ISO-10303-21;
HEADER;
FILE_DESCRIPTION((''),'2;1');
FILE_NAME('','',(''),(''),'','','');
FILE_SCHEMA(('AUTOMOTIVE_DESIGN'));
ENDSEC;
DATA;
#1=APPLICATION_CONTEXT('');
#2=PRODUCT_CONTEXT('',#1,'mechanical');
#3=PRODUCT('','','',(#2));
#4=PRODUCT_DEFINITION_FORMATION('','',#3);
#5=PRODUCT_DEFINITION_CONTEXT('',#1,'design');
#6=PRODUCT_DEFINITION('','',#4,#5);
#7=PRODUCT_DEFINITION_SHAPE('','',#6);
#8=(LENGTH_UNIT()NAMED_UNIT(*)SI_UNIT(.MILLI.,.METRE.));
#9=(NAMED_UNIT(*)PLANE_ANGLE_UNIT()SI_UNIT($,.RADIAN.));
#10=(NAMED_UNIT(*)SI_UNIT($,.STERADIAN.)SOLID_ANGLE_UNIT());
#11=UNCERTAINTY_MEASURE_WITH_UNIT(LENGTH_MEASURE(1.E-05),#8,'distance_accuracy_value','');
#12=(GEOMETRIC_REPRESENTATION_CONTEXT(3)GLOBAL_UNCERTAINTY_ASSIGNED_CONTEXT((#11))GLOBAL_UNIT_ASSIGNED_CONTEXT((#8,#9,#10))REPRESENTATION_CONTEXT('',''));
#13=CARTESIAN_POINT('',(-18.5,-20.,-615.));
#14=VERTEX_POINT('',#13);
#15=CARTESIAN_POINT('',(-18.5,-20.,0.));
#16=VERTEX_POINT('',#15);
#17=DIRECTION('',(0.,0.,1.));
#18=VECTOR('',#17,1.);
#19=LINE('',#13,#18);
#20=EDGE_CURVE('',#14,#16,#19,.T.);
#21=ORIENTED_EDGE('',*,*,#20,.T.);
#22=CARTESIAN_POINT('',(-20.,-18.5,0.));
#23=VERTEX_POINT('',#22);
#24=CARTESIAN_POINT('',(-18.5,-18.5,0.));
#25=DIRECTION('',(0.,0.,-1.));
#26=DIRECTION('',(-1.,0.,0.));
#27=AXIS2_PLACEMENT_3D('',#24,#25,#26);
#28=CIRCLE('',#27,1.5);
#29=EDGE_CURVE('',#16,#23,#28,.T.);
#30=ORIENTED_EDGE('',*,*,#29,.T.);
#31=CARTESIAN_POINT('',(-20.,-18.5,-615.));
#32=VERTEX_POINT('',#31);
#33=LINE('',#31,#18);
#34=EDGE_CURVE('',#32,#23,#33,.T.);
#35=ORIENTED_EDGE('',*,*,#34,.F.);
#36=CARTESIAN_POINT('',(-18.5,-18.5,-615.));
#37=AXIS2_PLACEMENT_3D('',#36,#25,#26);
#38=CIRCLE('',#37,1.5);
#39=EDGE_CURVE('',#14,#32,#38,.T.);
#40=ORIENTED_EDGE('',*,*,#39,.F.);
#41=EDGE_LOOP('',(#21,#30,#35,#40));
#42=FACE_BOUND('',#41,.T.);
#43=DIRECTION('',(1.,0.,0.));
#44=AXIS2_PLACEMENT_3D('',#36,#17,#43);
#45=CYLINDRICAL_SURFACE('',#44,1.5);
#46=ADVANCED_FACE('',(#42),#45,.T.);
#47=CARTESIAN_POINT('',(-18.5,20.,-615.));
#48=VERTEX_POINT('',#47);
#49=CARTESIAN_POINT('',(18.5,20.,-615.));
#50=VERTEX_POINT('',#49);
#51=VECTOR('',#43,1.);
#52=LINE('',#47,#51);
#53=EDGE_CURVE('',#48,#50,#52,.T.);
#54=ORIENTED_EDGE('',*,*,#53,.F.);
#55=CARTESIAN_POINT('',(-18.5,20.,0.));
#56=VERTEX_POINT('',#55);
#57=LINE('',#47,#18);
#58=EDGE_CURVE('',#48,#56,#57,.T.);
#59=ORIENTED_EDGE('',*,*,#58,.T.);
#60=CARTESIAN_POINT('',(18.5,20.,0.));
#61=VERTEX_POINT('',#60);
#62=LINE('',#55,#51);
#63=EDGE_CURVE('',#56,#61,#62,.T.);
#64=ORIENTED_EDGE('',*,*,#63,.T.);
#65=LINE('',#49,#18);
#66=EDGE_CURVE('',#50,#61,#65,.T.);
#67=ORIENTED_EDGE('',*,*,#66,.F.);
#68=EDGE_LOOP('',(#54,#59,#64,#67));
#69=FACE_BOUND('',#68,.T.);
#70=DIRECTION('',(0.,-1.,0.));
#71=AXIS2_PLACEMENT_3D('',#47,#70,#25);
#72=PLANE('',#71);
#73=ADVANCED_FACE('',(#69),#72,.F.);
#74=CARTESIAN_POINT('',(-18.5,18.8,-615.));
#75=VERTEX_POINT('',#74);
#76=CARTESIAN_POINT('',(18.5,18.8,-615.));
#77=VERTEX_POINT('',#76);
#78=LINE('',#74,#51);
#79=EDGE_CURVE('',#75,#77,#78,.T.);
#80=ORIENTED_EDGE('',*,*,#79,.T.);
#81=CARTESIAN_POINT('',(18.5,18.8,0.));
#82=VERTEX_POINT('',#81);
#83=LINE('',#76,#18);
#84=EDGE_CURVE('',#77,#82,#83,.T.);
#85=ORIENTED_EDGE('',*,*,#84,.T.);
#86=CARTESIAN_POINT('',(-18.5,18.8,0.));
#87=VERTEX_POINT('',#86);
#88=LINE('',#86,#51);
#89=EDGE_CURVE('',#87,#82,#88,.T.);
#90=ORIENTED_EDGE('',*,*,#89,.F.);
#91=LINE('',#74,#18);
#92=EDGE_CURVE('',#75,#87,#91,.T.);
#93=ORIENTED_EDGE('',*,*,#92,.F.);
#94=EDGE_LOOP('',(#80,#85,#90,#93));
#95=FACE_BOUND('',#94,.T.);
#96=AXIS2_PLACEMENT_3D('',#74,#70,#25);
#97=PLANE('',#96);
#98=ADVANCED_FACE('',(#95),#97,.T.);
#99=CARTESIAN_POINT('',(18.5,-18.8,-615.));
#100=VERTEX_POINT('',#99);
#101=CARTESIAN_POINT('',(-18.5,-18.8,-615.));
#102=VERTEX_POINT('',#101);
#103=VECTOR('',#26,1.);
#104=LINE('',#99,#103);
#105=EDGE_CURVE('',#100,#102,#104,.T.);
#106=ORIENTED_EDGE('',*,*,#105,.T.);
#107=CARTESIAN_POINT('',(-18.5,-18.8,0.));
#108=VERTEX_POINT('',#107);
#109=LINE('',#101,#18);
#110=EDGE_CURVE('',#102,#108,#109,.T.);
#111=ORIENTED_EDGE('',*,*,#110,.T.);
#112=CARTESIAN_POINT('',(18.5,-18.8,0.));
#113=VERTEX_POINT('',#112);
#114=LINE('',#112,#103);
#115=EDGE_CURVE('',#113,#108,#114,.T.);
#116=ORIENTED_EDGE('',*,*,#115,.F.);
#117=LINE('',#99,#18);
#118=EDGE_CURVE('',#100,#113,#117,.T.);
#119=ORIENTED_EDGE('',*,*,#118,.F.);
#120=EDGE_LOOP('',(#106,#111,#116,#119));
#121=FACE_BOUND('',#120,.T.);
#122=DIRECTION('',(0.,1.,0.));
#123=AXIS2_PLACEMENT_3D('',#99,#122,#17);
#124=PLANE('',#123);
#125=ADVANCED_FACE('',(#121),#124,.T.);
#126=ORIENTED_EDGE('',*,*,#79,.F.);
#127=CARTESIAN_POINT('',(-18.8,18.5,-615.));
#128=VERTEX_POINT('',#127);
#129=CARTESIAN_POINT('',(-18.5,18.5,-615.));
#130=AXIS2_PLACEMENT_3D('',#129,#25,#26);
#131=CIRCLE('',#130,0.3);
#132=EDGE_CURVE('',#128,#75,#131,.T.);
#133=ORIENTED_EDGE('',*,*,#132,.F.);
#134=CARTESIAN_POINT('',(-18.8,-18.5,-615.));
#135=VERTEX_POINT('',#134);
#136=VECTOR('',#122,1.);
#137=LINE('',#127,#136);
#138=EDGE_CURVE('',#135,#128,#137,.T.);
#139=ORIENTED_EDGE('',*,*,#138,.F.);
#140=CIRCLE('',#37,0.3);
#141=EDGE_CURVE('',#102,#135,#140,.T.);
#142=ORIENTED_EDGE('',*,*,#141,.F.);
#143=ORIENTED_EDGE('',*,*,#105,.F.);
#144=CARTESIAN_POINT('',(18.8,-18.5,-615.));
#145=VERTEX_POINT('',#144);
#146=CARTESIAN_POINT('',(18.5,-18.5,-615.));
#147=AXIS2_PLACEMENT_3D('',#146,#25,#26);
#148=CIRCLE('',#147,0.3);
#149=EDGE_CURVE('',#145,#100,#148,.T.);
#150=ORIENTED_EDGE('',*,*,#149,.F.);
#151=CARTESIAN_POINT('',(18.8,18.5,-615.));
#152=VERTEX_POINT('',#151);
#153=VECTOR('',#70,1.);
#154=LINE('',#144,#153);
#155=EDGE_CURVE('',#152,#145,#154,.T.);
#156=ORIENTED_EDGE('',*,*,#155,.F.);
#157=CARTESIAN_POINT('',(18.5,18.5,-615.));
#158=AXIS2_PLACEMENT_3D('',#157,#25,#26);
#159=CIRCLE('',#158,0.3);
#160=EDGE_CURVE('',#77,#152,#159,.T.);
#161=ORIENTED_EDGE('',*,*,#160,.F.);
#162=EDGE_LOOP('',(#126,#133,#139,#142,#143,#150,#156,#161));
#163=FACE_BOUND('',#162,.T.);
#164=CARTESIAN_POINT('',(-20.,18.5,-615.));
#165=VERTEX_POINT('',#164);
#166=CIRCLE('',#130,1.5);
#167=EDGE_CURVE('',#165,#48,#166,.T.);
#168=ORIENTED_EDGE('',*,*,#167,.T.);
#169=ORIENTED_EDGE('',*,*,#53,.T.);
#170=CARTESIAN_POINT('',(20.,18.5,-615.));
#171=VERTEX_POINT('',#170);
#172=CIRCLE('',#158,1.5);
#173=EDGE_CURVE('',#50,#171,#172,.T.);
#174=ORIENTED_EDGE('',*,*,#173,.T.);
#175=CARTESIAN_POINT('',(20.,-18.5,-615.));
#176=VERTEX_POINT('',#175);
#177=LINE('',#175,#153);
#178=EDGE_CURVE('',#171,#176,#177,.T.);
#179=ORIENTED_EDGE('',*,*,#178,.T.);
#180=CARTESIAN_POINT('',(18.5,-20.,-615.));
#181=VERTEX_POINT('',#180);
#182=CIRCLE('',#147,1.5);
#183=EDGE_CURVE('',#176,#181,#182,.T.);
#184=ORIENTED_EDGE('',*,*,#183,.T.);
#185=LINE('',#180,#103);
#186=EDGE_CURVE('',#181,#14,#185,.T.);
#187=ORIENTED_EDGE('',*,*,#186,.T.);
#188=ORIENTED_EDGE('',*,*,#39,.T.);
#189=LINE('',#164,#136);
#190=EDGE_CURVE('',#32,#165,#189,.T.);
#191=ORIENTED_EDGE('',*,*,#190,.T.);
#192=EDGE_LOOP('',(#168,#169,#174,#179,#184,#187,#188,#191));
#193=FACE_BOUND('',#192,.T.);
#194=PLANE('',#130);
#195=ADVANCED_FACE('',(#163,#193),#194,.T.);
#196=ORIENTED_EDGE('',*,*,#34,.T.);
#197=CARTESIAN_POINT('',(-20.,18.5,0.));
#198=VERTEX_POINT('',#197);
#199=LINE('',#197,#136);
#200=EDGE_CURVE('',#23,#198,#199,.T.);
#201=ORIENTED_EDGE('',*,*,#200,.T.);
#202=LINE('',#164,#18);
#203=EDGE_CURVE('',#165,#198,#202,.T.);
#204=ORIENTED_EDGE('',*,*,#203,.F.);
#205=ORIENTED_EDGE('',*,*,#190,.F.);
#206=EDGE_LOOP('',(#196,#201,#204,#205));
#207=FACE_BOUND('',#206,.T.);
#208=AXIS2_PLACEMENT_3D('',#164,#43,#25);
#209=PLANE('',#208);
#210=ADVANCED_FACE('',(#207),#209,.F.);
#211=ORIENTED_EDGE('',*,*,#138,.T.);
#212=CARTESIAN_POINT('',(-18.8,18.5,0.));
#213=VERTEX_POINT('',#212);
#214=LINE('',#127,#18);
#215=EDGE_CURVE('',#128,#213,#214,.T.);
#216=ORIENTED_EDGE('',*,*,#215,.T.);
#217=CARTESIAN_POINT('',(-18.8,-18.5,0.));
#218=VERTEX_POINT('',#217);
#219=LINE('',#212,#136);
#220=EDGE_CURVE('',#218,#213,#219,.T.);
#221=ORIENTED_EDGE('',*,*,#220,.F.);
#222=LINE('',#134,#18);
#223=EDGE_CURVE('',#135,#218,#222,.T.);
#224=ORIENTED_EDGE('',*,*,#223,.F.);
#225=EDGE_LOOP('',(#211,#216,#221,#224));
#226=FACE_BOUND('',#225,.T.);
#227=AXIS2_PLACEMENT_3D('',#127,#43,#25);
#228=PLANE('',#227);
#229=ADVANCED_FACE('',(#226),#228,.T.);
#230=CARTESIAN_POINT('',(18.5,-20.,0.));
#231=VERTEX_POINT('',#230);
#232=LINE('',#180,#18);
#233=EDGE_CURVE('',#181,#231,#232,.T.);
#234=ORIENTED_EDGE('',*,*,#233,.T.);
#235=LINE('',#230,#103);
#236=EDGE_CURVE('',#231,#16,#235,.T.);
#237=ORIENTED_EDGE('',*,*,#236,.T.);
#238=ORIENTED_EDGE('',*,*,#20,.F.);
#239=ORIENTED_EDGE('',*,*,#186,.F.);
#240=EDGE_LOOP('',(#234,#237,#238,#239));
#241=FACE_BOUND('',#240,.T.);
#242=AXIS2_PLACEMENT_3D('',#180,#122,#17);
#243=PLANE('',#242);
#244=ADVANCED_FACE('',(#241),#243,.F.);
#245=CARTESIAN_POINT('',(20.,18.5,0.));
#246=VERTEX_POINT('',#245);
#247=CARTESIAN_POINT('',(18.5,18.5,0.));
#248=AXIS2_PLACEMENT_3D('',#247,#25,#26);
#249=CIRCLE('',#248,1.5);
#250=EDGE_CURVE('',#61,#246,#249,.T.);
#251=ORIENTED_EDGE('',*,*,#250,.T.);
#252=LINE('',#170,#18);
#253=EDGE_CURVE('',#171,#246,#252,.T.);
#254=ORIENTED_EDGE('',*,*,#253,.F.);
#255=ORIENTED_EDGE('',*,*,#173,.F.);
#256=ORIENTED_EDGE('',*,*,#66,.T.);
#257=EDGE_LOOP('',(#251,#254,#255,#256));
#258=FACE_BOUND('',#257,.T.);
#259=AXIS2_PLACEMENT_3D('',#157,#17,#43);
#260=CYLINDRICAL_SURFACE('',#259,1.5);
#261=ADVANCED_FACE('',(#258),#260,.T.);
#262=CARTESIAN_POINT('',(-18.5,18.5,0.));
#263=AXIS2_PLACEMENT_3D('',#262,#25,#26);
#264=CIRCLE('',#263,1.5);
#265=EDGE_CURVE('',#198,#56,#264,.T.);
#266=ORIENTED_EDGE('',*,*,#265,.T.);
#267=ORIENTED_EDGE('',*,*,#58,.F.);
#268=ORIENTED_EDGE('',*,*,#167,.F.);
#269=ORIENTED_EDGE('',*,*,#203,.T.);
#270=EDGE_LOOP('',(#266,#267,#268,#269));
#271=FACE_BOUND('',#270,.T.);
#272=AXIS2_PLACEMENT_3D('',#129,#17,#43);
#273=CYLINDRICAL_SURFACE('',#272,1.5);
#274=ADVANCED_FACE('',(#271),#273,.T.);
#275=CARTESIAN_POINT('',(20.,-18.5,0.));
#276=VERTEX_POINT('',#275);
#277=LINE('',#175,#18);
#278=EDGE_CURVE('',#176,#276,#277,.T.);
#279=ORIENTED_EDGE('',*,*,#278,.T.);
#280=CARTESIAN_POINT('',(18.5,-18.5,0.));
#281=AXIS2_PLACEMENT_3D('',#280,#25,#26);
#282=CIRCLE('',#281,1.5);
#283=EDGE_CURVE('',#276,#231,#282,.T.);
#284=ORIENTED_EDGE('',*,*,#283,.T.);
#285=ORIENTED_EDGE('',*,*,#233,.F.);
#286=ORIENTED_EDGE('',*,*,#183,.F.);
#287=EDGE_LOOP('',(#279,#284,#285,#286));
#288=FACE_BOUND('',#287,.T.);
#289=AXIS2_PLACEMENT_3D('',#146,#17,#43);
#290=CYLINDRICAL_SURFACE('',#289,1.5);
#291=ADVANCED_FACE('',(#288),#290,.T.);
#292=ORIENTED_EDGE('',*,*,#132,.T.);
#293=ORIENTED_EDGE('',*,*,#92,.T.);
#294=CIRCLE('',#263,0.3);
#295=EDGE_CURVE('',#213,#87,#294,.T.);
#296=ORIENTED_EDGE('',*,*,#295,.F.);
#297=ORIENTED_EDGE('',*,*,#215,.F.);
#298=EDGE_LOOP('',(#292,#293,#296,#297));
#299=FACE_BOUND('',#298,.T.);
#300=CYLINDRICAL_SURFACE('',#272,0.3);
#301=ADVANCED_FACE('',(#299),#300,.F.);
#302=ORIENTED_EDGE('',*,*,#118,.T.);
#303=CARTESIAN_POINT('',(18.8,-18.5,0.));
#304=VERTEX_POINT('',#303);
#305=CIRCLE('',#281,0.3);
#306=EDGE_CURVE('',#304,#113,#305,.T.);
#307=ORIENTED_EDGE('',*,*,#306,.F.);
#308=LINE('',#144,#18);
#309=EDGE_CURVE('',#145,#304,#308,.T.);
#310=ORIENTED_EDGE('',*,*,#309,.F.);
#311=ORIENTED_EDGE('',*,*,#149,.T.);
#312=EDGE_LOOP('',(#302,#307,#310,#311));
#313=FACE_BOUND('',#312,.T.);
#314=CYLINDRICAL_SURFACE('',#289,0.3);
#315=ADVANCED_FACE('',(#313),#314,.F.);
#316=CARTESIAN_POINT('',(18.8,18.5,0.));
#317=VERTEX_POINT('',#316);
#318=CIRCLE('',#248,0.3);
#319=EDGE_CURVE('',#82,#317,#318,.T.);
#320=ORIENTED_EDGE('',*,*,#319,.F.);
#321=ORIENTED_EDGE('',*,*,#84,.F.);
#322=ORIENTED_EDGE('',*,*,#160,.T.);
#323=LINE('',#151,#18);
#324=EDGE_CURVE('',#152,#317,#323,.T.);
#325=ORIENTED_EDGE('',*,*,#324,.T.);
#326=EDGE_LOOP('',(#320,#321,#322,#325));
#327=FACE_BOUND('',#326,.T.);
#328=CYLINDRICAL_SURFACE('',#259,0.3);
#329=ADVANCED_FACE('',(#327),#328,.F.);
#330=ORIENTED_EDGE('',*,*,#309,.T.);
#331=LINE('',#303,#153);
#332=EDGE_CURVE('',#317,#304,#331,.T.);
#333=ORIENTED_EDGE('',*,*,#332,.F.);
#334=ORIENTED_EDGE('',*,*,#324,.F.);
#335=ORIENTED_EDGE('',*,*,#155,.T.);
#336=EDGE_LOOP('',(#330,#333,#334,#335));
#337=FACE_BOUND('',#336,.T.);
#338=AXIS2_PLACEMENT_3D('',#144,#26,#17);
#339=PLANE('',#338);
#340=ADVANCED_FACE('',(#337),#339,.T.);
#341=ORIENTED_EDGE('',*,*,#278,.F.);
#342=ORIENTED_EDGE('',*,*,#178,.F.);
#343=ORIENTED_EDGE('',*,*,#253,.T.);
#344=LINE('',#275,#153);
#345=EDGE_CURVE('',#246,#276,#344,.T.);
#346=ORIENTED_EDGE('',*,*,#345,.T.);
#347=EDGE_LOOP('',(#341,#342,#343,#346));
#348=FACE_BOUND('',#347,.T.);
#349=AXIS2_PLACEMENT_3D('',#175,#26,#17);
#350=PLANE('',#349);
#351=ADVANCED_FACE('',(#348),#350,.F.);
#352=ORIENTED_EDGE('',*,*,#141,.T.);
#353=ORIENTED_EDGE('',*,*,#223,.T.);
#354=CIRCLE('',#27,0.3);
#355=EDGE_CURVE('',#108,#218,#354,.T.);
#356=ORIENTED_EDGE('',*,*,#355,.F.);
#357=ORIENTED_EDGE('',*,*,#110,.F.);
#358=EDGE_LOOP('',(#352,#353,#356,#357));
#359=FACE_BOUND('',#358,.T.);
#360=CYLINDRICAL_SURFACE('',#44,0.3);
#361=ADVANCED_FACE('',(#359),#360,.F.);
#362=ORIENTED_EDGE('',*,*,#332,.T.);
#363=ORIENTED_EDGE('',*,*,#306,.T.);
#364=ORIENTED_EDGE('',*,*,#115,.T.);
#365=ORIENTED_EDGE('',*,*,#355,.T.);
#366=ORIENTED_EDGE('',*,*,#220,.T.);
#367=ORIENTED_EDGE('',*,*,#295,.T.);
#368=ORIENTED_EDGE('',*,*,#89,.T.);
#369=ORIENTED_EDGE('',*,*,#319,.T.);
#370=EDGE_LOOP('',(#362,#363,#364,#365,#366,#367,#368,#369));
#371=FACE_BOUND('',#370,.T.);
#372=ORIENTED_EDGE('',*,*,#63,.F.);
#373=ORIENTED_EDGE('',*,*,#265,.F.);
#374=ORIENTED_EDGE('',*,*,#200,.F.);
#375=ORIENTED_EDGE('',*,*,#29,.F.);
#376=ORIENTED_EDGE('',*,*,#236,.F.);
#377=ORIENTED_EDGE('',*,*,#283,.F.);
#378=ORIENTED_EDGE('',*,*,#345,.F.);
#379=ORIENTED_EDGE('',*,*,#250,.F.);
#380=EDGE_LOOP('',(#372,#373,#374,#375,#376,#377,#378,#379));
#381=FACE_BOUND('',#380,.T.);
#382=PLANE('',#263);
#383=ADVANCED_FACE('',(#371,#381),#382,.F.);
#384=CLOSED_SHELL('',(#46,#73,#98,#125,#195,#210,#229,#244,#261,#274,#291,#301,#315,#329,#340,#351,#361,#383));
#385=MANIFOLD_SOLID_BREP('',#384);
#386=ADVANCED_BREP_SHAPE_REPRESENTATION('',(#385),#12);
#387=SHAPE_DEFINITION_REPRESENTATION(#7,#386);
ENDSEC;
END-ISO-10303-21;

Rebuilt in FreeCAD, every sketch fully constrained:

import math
import FreeCAD as App
import Part
import Sketcher

doc = App.newDocument("Part")
body = doc.addObject("PartDesign::Body", "Body")

sketch1 = doc.addObject("Sketcher::SketchObject", "Sketch")
body.addObject(sketch1)
sketch1.AttachmentSupport = (doc.XY_Plane, [""])
sketch1.MapMode = "FlatFace"
sketch1.addGeometry([
    Part.LineSegment(App.Vector(18.5, -20, 0), App.Vector(-18.5, -20, 0)),
    Part.ArcOfCircle(Part.Circle(App.Vector(-18.5, -18.5, 0), App.Vector(0, 0, 1), 1.5), math.radians(180), math.radians(270)),
    Part.LineSegment(App.Vector(-20, -18.5, 0), App.Vector(-20, 18.5, 0)),
    Part.ArcOfCircle(Part.Circle(App.Vector(-18.5, 18.5, 0), App.Vector(0, 0, 1), 1.5), math.radians(90), math.radians(180)),
    Part.LineSegment(App.Vector(-18.5, 20, 0), App.Vector(18.5, 20, 0)),
    Part.ArcOfCircle(Part.Circle(App.Vector(18.5, 18.5, 0), App.Vector(0, 0, 1), 1.5), math.radians(0), math.radians(90)),
    Part.LineSegment(App.Vector(20, 18.5, 0), App.Vector(20, -18.5, 0)),
    Part.ArcOfCircle(Part.Circle(App.Vector(18.5, -18.5, 0), App.Vector(0, 0, 1), 1.5), math.radians(-90), math.radians(0)),
    Part.LineSegment(App.Vector(-18.5, -18.8, 0), App.Vector(18.5, -18.8, 0)),
    Part.ArcOfCircle(Part.Circle(App.Vector(18.5, -18.5, 0), App.Vector(0, 0, 1), 0.3), math.radians(-90), math.radians(0)),
    Part.LineSegment(App.Vector(18.8, -18.5, 0), App.Vector(18.8, 18.5, 0)),
    Part.ArcOfCircle(Part.Circle(App.Vector(18.5, 18.5, 0), App.Vector(0, 0, 1), 0.3), math.radians(0), math.radians(90)),
    Part.LineSegment(App.Vector(18.5, 18.8, 0), App.Vector(-18.5, 18.8, 0)),
    Part.ArcOfCircle(Part.Circle(App.Vector(-18.5, 18.5, 0), App.Vector(0, 0, 1), 0.3), math.radians(90), math.radians(180)),
    Part.LineSegment(App.Vector(-18.8, 18.5, 0), App.Vector(-18.8, -18.5, 0)),
    Part.ArcOfCircle(Part.Circle(App.Vector(-18.5, -18.5, 0), App.Vector(0, 0, 1), 0.3), math.radians(-180), math.radians(-90)),
], False)
sketch1.addConstraint([
    Sketcher.Constraint("Tangent", 0, 2, 1, 2),
    Sketcher.Constraint("Tangent", 1, 1, 2, 1),
    Sketcher.Constraint("Tangent", 2, 2, 3, 2),
    Sketcher.Constraint("Tangent", 3, 1, 4, 1),
    Sketcher.Constraint("Tangent", 4, 2, 5, 2),
    Sketcher.Constraint("Tangent", 5, 1, 6, 1),
    Sketcher.Constraint("Tangent", 6, 2, 7, 2),
    Sketcher.Constraint("Tangent", 7, 1, 0, 1),
    Sketcher.Constraint("Tangent", 8, 2, 9, 1),
    Sketcher.Constraint("Tangent", 9, 2, 10, 1),
    Sketcher.Constraint("Tangent", 10, 2, 11, 1),
    Sketcher.Constraint("Tangent", 11, 2, 12, 1),
    Sketcher.Constraint("Tangent", 12, 2, 13, 1),
    Sketcher.Constraint("Tangent", 13, 2, 14, 1),
    Sketcher.Constraint("Tangent", 14, 2, 15, 1),
    Sketcher.Constraint("Tangent", 15, 2, 8, 1),
    Sketcher.Constraint("Horizontal", 0),
    Sketcher.Constraint("Vertical", 2),
    Sketcher.Constraint("Horizontal", 4),
    Sketcher.Constraint("Vertical", 6),
    Sketcher.Constraint("Horizontal", 8),
    Sketcher.Constraint("Vertical", 10),
    Sketcher.Constraint("Horizontal", 12),
    Sketcher.Constraint("Vertical", 14),
    Sketcher.Constraint("Coincident", 9, 3, 7, 3),
    Sketcher.Constraint("Coincident", 11, 3, 5, 3),
    Sketcher.Constraint("Coincident", 13, 3, 3, 3),
    Sketcher.Constraint("Equal", 1, 3),
    Sketcher.Constraint("Equal", 3, 5),
    Sketcher.Constraint("Equal", 5, 7),
    Sketcher.Constraint("Equal", 13, 15),
    Sketcher.Constraint("Symmetric", 1, 3, 5, 3, -1, 1),
    Sketcher.Constraint("Equal", 12, 2),
    Sketcher.Constraint("Radius", 1, 1.5),
    Sketcher.Constraint("Radius", 9, 0.3),
    Sketcher.Constraint("DistanceX", 0, 2, 0, 1, 37.0),
])
pad1 = doc.addObject("PartDesign::Pad", "Pad")
body.addObject(pad1)
pad1.Profile = sketch1
pad1.Length = 615
pad1.Reversed = True

doc.recompute()
